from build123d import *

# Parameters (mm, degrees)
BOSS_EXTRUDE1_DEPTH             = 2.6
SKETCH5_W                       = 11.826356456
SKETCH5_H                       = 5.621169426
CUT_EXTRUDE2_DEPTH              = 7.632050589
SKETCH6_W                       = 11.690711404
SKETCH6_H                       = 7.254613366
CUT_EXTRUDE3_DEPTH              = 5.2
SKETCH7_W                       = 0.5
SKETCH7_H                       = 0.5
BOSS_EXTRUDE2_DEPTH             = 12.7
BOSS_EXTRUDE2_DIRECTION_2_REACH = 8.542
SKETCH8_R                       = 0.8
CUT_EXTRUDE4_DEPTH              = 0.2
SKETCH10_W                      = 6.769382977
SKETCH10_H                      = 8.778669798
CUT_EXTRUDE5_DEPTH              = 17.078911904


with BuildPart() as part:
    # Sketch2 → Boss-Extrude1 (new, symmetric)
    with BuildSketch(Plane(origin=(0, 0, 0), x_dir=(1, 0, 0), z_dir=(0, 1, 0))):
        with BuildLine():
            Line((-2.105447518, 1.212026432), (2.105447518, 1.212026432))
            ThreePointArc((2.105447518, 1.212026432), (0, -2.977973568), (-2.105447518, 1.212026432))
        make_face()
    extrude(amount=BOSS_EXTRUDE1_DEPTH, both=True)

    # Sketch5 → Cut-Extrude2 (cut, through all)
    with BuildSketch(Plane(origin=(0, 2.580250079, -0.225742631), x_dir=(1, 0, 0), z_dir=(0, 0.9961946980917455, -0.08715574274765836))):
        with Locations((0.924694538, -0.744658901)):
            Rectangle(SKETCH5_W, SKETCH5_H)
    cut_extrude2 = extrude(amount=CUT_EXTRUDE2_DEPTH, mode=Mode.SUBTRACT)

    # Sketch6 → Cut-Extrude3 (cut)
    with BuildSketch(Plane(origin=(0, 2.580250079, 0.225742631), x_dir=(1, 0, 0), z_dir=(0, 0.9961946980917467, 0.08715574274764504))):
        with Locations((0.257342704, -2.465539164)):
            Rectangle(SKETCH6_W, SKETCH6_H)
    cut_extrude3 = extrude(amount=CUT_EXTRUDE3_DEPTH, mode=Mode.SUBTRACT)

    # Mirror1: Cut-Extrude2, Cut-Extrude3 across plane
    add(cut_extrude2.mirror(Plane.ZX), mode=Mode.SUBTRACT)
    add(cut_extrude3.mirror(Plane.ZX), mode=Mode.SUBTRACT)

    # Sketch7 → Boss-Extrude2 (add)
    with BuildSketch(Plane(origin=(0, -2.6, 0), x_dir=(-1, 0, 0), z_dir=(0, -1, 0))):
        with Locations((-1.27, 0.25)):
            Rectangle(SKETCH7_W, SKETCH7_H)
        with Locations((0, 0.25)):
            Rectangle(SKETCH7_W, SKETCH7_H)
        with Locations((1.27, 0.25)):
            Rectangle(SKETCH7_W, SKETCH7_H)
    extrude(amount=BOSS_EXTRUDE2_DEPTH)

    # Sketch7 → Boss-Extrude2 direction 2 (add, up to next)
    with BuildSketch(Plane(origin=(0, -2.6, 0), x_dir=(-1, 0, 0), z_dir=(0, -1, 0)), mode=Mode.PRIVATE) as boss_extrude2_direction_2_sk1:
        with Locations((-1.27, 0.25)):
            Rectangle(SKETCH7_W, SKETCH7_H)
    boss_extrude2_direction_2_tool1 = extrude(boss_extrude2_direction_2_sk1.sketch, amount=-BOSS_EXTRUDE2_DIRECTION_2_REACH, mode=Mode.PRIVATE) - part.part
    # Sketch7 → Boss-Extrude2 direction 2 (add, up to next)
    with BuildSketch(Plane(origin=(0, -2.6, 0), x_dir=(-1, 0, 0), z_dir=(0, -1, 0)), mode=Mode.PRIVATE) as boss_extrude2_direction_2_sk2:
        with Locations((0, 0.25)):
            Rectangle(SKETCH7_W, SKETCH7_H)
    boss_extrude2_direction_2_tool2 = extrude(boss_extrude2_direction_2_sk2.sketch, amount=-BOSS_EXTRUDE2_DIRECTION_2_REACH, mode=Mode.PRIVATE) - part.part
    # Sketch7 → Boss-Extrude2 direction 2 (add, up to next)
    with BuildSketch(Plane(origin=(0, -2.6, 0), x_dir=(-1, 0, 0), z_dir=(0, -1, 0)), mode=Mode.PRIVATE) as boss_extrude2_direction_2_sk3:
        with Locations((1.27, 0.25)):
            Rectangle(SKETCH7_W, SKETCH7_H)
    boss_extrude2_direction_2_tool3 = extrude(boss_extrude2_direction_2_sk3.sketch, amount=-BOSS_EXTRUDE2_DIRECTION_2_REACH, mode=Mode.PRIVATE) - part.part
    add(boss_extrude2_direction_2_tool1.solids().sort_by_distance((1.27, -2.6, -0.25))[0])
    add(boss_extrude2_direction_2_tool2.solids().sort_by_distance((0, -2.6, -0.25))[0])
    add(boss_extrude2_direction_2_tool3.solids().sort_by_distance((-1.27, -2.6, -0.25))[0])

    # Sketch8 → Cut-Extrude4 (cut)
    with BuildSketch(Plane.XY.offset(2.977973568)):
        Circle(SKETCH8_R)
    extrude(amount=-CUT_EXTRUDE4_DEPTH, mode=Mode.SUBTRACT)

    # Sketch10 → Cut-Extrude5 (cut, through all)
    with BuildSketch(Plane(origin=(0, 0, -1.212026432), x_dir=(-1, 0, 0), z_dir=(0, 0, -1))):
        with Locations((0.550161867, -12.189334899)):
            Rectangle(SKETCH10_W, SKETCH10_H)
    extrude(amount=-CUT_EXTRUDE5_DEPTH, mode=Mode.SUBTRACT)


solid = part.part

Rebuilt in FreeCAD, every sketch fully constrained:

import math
import FreeCAD as App
import Part
import Sketcher


def add_polygon(sketch, points):
    """Adds a closed chain of lines whose ends are joined by coincident constraints."""
    first, n = sketch.GeometryCount, len(points)
    for a, b in zip(points, points[1:] + points[:1]):
        sketch.addGeometry(Part.LineSegment(App.Vector(*a, 0), App.Vector(*b, 0)), False)
    for i in range(n):
        sketch.addConstraint(Sketcher.Constraint("Coincident", first + i, 2, first + (i + 1) % n, 1))

doc = App.newDocument("Part")
body = doc.addObject("PartDesign::Body", "Body")
body.AllowCompound = True

sketch1 = doc.addObject("Sketcher::SketchObject", "Sketch")
body.addObject(sketch1)
sketch1.AttachmentSupport = (doc.XZ_Plane, [""])
sketch1.MapMode = "FlatFace"
sketch1.addGeometry([
    Part.LineSegment(App.Vector(2.1, -1.2, 0), App.Vector(-2.1, -1.2, 0)),
    Part.ArcOfCircle(Part.Circle(App.Vector(0, 0.4, 0), App.Vector(0, 0, 1), 2.6), math.radians(-37), math.radians(217)),
], False)
sketch1.addConstraint([
    Sketcher.Constraint("Coincident", 0, 1, 1, 1),
    Sketcher.Constraint("Coincident", 1, 2, 0, 2),
    Sketcher.Constraint("Horizontal", 0),
    Sketcher.Constraint("PointOnObject", 1, 3, -2),
    Sketcher.Constraint("Radius", 1, 2.623987),
    Sketcher.Constraint("DistanceX", 0, 2, 0, 1, 4.210895),
    Sketcher.Constraint("DistanceY", -1, 1, 1, 3, 0.353987),
])
pad1 = doc.addObject("PartDesign::Pad", "Pad")
body.addObject(pad1)
pad1.Profile = sketch1
pad1.Length = 5.2
pad1.Midplane = True

sketch2 = doc.addObject("Sketcher::SketchObject", "Sketch001")
body.addObject(sketch2)
sketch2.Placement = App.Placement(App.Vector(0, 2.58025, -0.225743), App.Rotation(App.Vector(1, 0, 0), App.Vector(0, -0.087155743, -0.996194698), App.Vector(0, 0.996194698, -0.087155743), "ZXY"))
add_polygon(sketch2, [(-5, 2), (-5, -4), (7, -4), (7, 2)])
sketch2.addConstraint([
    Sketcher.Constraint("Vertical", 0),
    Sketcher.Constraint("Horizontal", 1),
    Sketcher.Constraint("Vertical", 2),
    Sketcher.Constraint("Horizontal", 3),
    Sketcher.Constraint("DistanceY", 0, 2, 0, 1, 5.621169),
    Sketcher.Constraint("DistanceX", 1, 1, 1, 2, 11.826356),
    Sketcher.Constraint("DistanceX", 0, 2, -1, 1, 4.988484),
    Sketcher.Constraint("DistanceY", 0, 2, -1, 1, 3.555244),
])
pocket1 = doc.addObject("PartDesign::Pocket", "Pocket")
body.addObject(pocket1)
pocket1.Profile = sketch2
pocket1.Type = "ThroughAll"
pocket1.Reversed = True

sketch3 = doc.addObject("Sketcher::SketchObject", "Sketch002")
body.addObject(sketch3)
sketch3.Placement = App.Placement(App.Vector(0, 2.58025, 0.225743), App.Rotation(App.Vector(1, 0, 0), App.Vector(0, 0.087155743, -0.996194698), App.Vector(0, 0.996194698, 0.087155743), "ZXY"))
add_polygon(sketch3, [(-6, 1), (-6, -6), (6, -6), (6, 1)])
sketch3.addConstraint([
    Sketcher.Constraint("Vertical", 0),
    Sketcher.Constraint("Horizontal", 1),
    Sketcher.Constraint("Vertical", 2),
    Sketcher.Constraint("Horizontal", 3),
    Sketcher.Constraint("DistanceX", 1, 1, 1, 2, 11.690711),
    Sketcher.Constraint("DistanceX", -1, 1, 1, 2, 6.102698),
    Sketcher.Constraint("DistanceY", 0, 2, 0, 1, 7.254613),
    Sketcher.Constraint("DistanceY", 0, 2, -1, 1, 6.092846),
])
pocket2 = doc.addObject("PartDesign::Pocket", "Pocket001")
body.addObject(pocket2)
pocket2.Profile = sketch3
pocket2.Length = 5.2
pocket2.Reversed = True
doc.recompute()

mirrored = doc.addObject("PartDesign::Mirrored", "Mirrored")
body.addObject(mirrored)
mirrored.Originals = [pocket1, pocket2]
mirrored.MirrorPlane = (doc.XZ_Plane, [""])
body.Tip = mirrored

sketch4 = doc.addObject("Sketcher::SketchObject", "Sketch003")
body.addObject(sketch4)
sketch4.AttachmentSupport = (doc.XZ_Plane, [""])
sketch4.MapMode = "FlatFace"
sketch4.AttachmentOffset = App.Placement(App.Vector(0, 0, 2.6), App.Rotation())
add_polygon(sketch4, [(1.5, -0.5), (1.5, 0), (1, 0), (1, -0.5)])
add_polygon(sketch4, [(0.2, -0.5), (0.2, 0), (-0.2, 0), (-0.2, -0.5)])
add_polygon(sketch4, [(-1, -0.5), (-1, 0), (-1.5, 0), (-1.5, -0.5)])
sketch4.addConstraint([
    Sketcher.Constraint("Vertical", 0),
    Sketcher.Constraint("Horizontal", 1),
    Sketcher.Constraint("Vertical", 2),
    Sketcher.Constraint("Horizontal", 3),
    Sketcher.Constraint("Vertical", 4),
    Sketcher.Constraint("Horizontal", 5),
    Sketcher.Constraint("Vertical", 6),
    Sketcher.Constraint("Horizontal", 7),
    Sketcher.Constraint("Vertical", 8),
    Sketcher.Constraint("Horizontal", 9),
    Sketcher.Constraint("Vertical", 10),
    Sketcher.Constraint("Horizontal", 11),
    Sketcher.Constraint("Symmetric", 4, 2, 5, 2, -1, 1),
    Sketcher.Constraint("Symmetric", 1, 2, 8, 2, -1, 1),
    Sketcher.Constraint("Symmetric", 0, 2, 9, 2, -2),
    Sketcher.Constraint("Horizontal", 3, 2, 6, 2),
    Sketcher.Constraint("Horizontal", 7, 2, 10, 2),
    Sketcher.Constraint("Equal", 3, 5),
    Sketcher.Constraint("Equal", 11, 0),
    Sketcher.Constraint("DistanceX", 1, 2, 1, 1, 0.5),
    Sketcher.Constraint("DistanceX", -1, 1, 0, 2, 1.52),
])
pad2 = doc.addObject("PartDesign::Pad", "Pad001")
body.addObject(pad2)
pad2.Profile = sketch4
pad2.Length = 12.7

sketch5 = doc.addObject("Sketcher::SketchObject", "Sketch004")
body.addObject(sketch5)
sketch5.AttachmentSupport = (doc.XZ_Plane, [""])
sketch5.MapMode = "FlatFace"
sketch5.AttachmentOffset = App.Placement(App.Vector(0, 0, 2.6), App.Rotation())
add_polygon(sketch5, [(1.5, -0.5), (1.5, 0), (1, 0), (1, -0.5)])
sketch5.addConstraint([
    Sketcher.Constraint("Vertical", 0),
    Sketcher.Constraint("Horizontal", 1),
    Sketcher.Constraint("Vertical", 2),
    Sketcher.Constraint("Horizontal", 3),
    Sketcher.Constraint("PointOnObject", 0, 2, -1),
    Sketcher.Constraint("Equal", 3, 0),
    Sketcher.Constraint("DistanceX", 1, 2, 1, 1, 0.5),
    Sketcher.Constraint("DistanceX", -1, 1, 0, 2, 1.52),
])
pad3 = doc.addObject("PartDesign::Pad", "Pad002")
body.addObject(pad3)
pad3.Profile = sketch5
pad3.Length = 0.043744
pad3.Reversed = True

sketch6 = doc.addObject("Sketcher::SketchObject", "Sketch005")
body.addObject(sketch6)
sketch6.AttachmentSupport = (doc.XZ_Plane, [""])
sketch6.MapMode = "FlatFace"
sketch6.AttachmentOffset = App.Placement(App.Vector(0, 0, 2.6), App.Rotation())
add_polygon(sketch6, [(0.2, -0.5), (0.2, 0), (-0.2, 0), (-0.2, -0.5)])
sketch6.addConstraint([
    Sketcher.Constraint("Vertical", 0),
    Sketcher.Constraint("Horizontal", 1),
    Sketcher.Constraint("Vertical", 2),
    Sketcher.Constraint("Horizontal", 3),
    Sketcher.Constraint("Symmetric", 0, 2, 1, 2, -1, 1),
    Sketcher.Constraint("Equal", 3, 0),
    Sketcher.Constraint("DistanceX", 1, 2, 1, 1, 0.5),
])
pad4 = doc.addObject("PartDesign::Pad", "Pad003")
body.addObject(pad4)
pad4.Profile = sketch6
pad4.Length = 0.043744
pad4.Reversed = True

sketch7 = doc.addObject("Sketcher::SketchObject", "Sketch006")
body.addObject(sketch7)
sketch7.AttachmentSupport = (doc.XZ_Plane, [""])
sketch7.MapMode = "FlatFace"
sketch7.AttachmentOffset = App.Placement(App.Vector(0, 0, 2.6), App.Rotation())
add_polygon(sketch7, [(-1, -0.5), (-1, 0), (-1.5, 0), (-1.5, -0.5)])
sketch7.addConstraint([
    Sketcher.Constraint("Vertical", 0),
    Sketcher.Constraint("Horizontal", 1),
    Sketcher.Constraint("Vertical", 2),
    Sketcher.Constraint("Horizontal", 3),
    Sketcher.Constraint("PointOnObject", 0, 2, -1),
    Sketcher.Constraint("Equal", 3, 0),
    Sketcher.Constraint("DistanceX", 1, 2, 1, 1, 0.5),
    Sketcher.Constraint("DistanceX", 0, 2, -1, 1, 1.02),
])
pad5 = doc.addObject("PartDesign::Pad", "Pad004")
body.addObject(pad5)
pad5.Profile = sketch7
pad5.Length = 0.043744
pad5.Reversed = True

sketch8 = doc.addObject("Sketcher::SketchObject", "Sketch007")
body.addObject(sketch8)
sketch8.AttachmentSupport = (doc.XY_Plane, [""])
sketch8.MapMode = "FlatFace"
sketch8.AttachmentOffset = App.Placement(App.Vector(0, 0, 2.977974), App.Rotation())
sketch8.addGeometry(Part.Circle(App.Vector(0, 0, 0), App.Vector(0, 0, 1), 0.8), False)
sketch8.addConstraint([
    Sketcher.Constraint("Coincident", 0, 3, -1, 1),
    Sketcher.Constraint("Diameter", 0, 1.6),
])
pocket3 = doc.addObject("PartDesign::Pocket", "Pocket002")
body.addObject(pocket3)
pocket3.Profile = sketch8
pocket3.Length = 0.2

sketch9 = doc.addObject("Sketcher::SketchObject", "Sketch008")
body.addObject(sketch9)
sketch9.AttachmentSupport = (doc.XY_Plane, [""])
sketch9.MapMode = "FlatFace"
sketch9.AttachmentOffset = App.Placement(App.Vector(0, 0, -1.212026), App.Rotation())
add_polygon(sketch9, [(3, -8), (3, -17), (-4, -17), (-4, -8)])
sketch9.addConstraint([
    Sketcher.Constraint("Vertical", 0),
    Sketcher.Constraint("Horizontal", 1),
    Sketcher.Constraint("Vertical", 2),
    Sketcher.Constraint("Horizontal", 3),
    Sketcher.Constraint("DistanceY", 2, 2, -1, 1, 7.8),
    Sketcher.Constraint("DistanceY", 0, 2, 0, 1, 8.77867),
    Sketcher.Constraint("DistanceX", 1, 2, 1, 1, 6.769383),
    Sketcher.Constraint("DistanceX", -1, 1, 0, 2, 2.83453),
])
pocket4 = doc.addObject("PartDesign::Pocket", "Pocket003")
body.addObject(pocket4)
pocket4.Profile = sketch9
pocket4.Type = "ThroughAll"
pocket4.Reversed = True

doc.recompute()
